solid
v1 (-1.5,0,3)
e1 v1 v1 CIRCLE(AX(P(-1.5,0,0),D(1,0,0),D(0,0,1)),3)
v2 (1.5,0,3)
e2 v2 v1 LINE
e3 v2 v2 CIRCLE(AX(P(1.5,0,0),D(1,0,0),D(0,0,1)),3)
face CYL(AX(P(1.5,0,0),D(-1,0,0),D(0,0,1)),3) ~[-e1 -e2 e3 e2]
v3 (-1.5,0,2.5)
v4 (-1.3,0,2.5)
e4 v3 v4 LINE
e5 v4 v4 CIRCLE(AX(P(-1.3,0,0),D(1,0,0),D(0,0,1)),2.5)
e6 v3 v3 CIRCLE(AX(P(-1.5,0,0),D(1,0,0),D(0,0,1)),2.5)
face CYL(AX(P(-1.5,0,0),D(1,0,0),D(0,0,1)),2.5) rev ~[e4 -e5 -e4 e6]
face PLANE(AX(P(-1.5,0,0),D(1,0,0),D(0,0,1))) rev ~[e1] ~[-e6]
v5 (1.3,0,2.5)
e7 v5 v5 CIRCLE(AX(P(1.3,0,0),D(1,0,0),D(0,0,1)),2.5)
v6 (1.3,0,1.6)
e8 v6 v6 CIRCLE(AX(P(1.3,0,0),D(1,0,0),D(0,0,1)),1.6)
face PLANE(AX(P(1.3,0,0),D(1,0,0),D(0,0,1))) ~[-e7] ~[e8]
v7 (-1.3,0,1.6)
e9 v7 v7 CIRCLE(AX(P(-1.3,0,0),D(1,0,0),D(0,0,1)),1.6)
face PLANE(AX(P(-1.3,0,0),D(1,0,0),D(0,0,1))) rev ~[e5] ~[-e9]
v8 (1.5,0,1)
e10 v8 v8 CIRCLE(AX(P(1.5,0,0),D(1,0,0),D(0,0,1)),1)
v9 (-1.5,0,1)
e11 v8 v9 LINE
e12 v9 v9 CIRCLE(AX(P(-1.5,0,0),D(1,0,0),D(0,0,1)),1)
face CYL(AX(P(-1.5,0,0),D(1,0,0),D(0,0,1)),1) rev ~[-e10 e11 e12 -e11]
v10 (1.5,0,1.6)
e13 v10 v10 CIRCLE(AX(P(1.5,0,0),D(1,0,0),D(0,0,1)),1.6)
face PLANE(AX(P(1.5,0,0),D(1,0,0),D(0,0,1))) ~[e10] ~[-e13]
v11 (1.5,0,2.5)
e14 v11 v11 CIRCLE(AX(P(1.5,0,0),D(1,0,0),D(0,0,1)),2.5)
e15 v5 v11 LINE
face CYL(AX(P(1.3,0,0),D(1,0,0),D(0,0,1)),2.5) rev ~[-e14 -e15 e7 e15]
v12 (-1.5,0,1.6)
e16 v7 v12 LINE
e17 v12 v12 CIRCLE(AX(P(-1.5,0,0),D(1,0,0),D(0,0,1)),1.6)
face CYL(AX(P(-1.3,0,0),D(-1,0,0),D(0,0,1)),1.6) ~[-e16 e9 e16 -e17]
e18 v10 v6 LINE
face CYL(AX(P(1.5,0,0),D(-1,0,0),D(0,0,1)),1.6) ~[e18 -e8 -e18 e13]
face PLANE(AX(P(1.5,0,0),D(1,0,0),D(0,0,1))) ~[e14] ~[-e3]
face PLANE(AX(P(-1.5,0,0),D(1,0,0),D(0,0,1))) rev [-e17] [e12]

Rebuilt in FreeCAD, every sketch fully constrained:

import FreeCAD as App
import Part
import Sketcher
from FreeCAD import Vector


def add_polygon(sketch, points):
    """Adds a closed chain of lines whose ends are joined by coincident constraints."""
    first, n = sketch.GeometryCount, len(points)
    for a, b in zip(points, points[1:] + points[:1]):
        sketch.addGeometry(Part.LineSegment(App.Vector(*a, 0), App.Vector(*b, 0)), False)
    for i in range(n):
        sketch.addConstraint(Sketcher.Constraint("Coincident", first + i, 2, first + (i + 1) % n, 1))

doc = App.newDocument("Part")
params = doc.addObject("Spreadsheet::Sheet", "Params")
for row, (alias, value) in enumerate([
    ("sketch1_width", "3 mm"),
    ("sketch1_width2", "0.2 mm"),
    ("sketch1_height", "0.6 mm"),
    ("sketch1_height2", "0.5 mm"),
    ("revolution_angle", "360 deg"),
], start=1):
    params.set(f"A{row}", alias)
    params.set(f"B{row}", "=" + value)
    params.setAlias(f"B{row}", alias)

body = doc.addObject("PartDesign::Body", "Body")

# Sketch on XZ plane
sketch1 = body.newObject("Sketcher::SketchObject", "Sketch")
sketch1.AttachmentSupport = (doc.getObject("XZ_Plane"), [""])
sketch1.MapMode = "FlatFace"
add_polygon(sketch1, [(-1.5, 1), (-1.5, 1.6), (-1.3, 1.6), (-1.3, 2.5), (-1.5, 2.5), (-1.5, 3), (1.5, 3), (1.5, 2.5), (1.3, 2.5), (1.3, 1.6), (1.5, 1.6), (1.5, 1)])  # lines 0-11
sketch1.addConstraint([
    Sketcher.Constraint("Vertical", 0),
    Sketcher.Constraint("Horizontal", 1),
    Sketcher.Constraint("Vertical", 2),
    Sketcher.Constraint("Horizontal", 3),
    Sketcher.Constraint("Vertical", 4),
    Sketcher.Constraint("Horizontal", 5),
    Sketcher.Constraint("Vertical", 6),
    Sketcher.Constraint("Horizontal", 7),
    Sketcher.Constraint("Vertical", 8),
    Sketcher.Constraint("Horizontal", 9),
    Sketcher.Constraint("Vertical", 10),
    Sketcher.Constraint("Horizontal", 11),
    Sketcher.Constraint("Symmetric", 3, 2, 6, 2, -2),
    Sketcher.Constraint("Symmetric", 1, 2, 8, 2, -2),
    Sketcher.Constraint("Vertical", 0, 2, 3, 2),
    Sketcher.Constraint("Vertical", 6, 2, 9, 2),
    Sketcher.Constraint("DistanceX", 5, 1, 5, 2, 3.0),
    Sketcher.Constraint("DistanceX", 1, 1, 1, 2, 0.2),
    Sketcher.Constraint("DistanceY", 0, 1, 0, 2, 0.6),
    Sketcher.Constraint("DistanceY", 4, 1, 4, 2, 0.5),
    Sketcher.Constraint("DistanceY", -1, 1, 4, 2, 3.0),
    Sketcher.Constraint("DistanceY", 10, 2, 5, 2, 2.0),
])
sketch1.setExpression("Constraints[28]", "Params.sketch1_width")
sketch1.setExpression("Constraints[29]", "Params.sketch1_width2")
sketch1.setExpression("Constraints[30]", "Params.sketch1_height")
sketch1.setExpression("Constraints[31]", "Params.sketch1_height2")
revolution = body.newObject("PartDesign::Revolution", "Revolution")
revolution.Profile = sketch1
revolution.ReferenceAxis = (sketch1, ["H_Axis"])
revolution.setExpression("Angle", "Params.revolution_angle")

doc.recompute()
